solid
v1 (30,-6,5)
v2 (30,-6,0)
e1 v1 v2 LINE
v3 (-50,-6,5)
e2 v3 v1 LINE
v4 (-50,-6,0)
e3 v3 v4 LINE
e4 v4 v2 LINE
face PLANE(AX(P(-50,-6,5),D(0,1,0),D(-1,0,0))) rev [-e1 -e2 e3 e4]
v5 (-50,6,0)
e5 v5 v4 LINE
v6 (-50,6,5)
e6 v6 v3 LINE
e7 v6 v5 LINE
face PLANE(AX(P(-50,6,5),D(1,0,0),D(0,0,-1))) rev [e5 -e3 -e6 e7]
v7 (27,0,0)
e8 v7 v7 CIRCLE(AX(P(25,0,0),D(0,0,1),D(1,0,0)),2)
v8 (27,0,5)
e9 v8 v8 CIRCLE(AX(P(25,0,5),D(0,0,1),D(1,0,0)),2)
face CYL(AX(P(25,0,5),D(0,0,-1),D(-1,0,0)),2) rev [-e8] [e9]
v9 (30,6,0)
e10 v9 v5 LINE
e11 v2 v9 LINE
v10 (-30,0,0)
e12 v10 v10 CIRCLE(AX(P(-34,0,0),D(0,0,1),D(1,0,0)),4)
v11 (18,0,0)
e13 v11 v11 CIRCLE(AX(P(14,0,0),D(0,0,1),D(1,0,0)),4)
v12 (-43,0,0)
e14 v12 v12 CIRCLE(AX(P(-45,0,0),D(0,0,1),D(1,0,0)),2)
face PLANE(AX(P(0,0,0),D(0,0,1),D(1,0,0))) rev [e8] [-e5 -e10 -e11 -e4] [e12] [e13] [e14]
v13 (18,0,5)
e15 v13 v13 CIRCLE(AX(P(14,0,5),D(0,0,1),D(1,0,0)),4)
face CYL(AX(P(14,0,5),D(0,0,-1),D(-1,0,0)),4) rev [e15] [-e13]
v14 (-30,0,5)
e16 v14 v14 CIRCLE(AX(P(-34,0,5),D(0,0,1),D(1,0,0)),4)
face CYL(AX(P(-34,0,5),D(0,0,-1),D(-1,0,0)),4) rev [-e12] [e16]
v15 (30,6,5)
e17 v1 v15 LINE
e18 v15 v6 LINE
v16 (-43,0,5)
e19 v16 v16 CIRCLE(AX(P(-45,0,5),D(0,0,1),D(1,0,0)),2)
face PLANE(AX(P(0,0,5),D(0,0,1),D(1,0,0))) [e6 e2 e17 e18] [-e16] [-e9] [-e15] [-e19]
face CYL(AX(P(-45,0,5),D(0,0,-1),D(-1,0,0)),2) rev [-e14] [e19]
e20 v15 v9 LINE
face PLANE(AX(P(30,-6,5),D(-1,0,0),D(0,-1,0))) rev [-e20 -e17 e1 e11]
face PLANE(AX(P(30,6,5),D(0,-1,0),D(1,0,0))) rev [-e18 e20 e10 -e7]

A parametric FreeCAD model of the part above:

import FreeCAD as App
import Part
import Sketcher

doc = App.newDocument("Part")
body = doc.addObject("PartDesign::Body", "Body")

# Sketch on XY plane
sketch1 = body.newObject("Sketcher::SketchObject", "Sketch")
sketch1.AttachmentSupport = (doc.getObject("XY_Plane"), [""])
sketch1.MapMode = "FlatFace"
sketch1.addGeometry([
    Part.LineSegment(App.Vector(-50, 6, 0), App.Vector(-50, -6, 0)),  # 0
    Part.LineSegment(App.Vector(-50, -6, 0), App.Vector(30, -6, 0)),  # 1
    Part.LineSegment(App.Vector(30, -6, 0), App.Vector(30, 6, 0)),  # 2
    Part.LineSegment(App.Vector(30, 6, 0), App.Vector(-50, 6, 0)),  # 3
    Part.Circle(App.Vector(-45, 0, 0), App.Vector(0, 0, 1), 2),  # 4
    Part.Circle(App.Vector(-34, 0, 0), App.Vector(0, 0, 1), 4),  # 5
    Part.Circle(App.Vector(14, 0, 0), App.Vector(0, 0, 1), 4),  # 6
    Part.Circle(App.Vector(25, 0, 0), App.Vector(0, 0, 1), 2),  # 7
], False)
sketch1.addConstraint([
    Sketcher.Constraint("Coincident", 0, 2, 1, 1),
    Sketcher.Constraint("Coincident", 1, 2, 2, 1),
    Sketcher.Constraint("Coincident", 2, 2, 3, 1),
    Sketcher.Constraint("Coincident", 3, 2, 0, 1),
    Sketcher.Constraint("Vertical", 0),
    Sketcher.Constraint("Horizontal", 1),
    Sketcher.Constraint("Vertical", 2),
    Sketcher.Constraint("Horizontal", 3),
    Sketcher.Constraint("Equal", 5, 6),
    Sketcher.Constraint("Equal", 4, 7),
    Sketcher.Constraint("PointOnObject", 4, 3, -1),
    Sketcher.Constraint("PointOnObject", 5, 3, -1),
    Sketcher.Constraint("PointOnObject", 6, 3, -1),
    Sketcher.Constraint("PointOnObject", 7, 3, -1),
    Sketcher.Constraint("Diameter", 4, 4.0),
    Sketcher.Constraint("Diameter", 5, 8.0),
    Sketcher.Constraint("DistanceX", 1, 1, 1, 2, 80.0),
    Sketcher.Constraint("DistanceY", 0, 2, 0, 1, 12.0),
    Sketcher.Constraint("DistanceX", 4, 3, -1, 1, 45.0),
    Sketcher.Constraint("DistanceX", 5, 3, -1, 1, 34.0),
    Sketcher.Constraint("DistanceX", -1, 1, 6, 3, 14.0),
    Sketcher.Constraint("DistanceX", -1, 1, 7, 3, 25.0),
    Sketcher.Constraint("DistanceX", 0, 2, -1, 1, 50.0),
    Sketcher.Constraint("DistanceY", 0, 2, -1, 1, 6.0),
])
pad1 = body.newObject("PartDesign::Pad", "Pad")
pad1.Profile = sketch1
pad1.Length = 5

doc.recompute()
